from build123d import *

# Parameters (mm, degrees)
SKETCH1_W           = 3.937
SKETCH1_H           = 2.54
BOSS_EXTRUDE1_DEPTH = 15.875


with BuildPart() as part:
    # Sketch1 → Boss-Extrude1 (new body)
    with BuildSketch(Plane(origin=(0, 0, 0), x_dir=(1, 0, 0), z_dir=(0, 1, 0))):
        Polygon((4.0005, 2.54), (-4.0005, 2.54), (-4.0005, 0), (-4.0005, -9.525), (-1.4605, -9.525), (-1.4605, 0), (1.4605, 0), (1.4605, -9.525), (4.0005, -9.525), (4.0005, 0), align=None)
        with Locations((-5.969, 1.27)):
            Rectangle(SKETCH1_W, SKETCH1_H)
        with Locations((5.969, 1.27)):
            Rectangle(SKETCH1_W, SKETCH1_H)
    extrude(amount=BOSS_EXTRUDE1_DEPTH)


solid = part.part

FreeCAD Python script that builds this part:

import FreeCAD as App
import Part
import Sketcher

V = App.Vector
Q = App.Units.Quantity


def add_polygon(sketch, points):
    """Adds a closed chain of lines whose ends are joined by coincident constraints."""
    first, n = sketch.GeometryCount, len(points)
    for a, b in zip(points, points[1:] + points[:1]):
        sketch.addGeometry(Part.LineSegment(App.Vector(*a, 0), App.Vector(*b, 0)), False)
    for i in range(n):
        sketch.addConstraint(Sketcher.Constraint("Coincident", first + i, 2, first + (i + 1) % n, 1))

doc = App.newDocument("Part")
body = doc.addObject("PartDesign::Body", "Body")

# Sketch on XZ plane
sketch1 = doc.addObject("Sketcher::SketchObject", "Sketch")
body.addObject(sketch1)
sketch1.AttachmentSupport = (doc.XZ_Plane, [""])
sketch1.MapMode = "FlatFace"
add_polygon(sketch1, [(-7.9, -2.5), (-7.9, 0), (-4, 0), (-4, 9.5), (-1.5, 9.5), (-1.5, 0), (1.5, 0), (1.5, 9.5), (4, 9.5), (4, 0), (7.9, 0), (7.9, -2.5)])  # lines 0-11
sketch1.addConstraint(Sketcher.Constraint("Vertical", 0))
sketch1.addConstraint(Sketcher.Constraint("Horizontal", 1))
sketch1.addConstraint(Sketcher.Constraint("Vertical", 2))
sketch1.addConstraint(Sketcher.Constraint("Horizontal", 3))
sketch1.addConstraint(Sketcher.Constraint("Vertical", 4))
sketch1.addConstraint(Sketcher.Constraint("Horizontal", 5))
sketch1.addConstraint(Sketcher.Constraint("Vertical", 6))
sketch1.addConstraint(Sketcher.Constraint("Horizontal", 7))
sketch1.addConstraint(Sketcher.Constraint("Vertical", 8))
sketch1.addConstraint(Sketcher.Constraint("Horizontal", 9))
sketch1.addConstraint(Sketcher.Constraint("Vertical", 10))
sketch1.addConstraint(Sketcher.Constraint("Horizontal", 11))
sketch1.addConstraint(Sketcher.Constraint("Symmetric", 4, 2, 5, 2, -1, 1))
sketch1.addConstraint(Sketcher.Constraint("Symmetric", 1, 2, 8, 2, -1, 1))
sketch1.addConstraint(Sketcher.Constraint("Symmetric", 0, 2, 9, 2, -2))
sketch1.addConstraint(Sketcher.Constraint("Horizontal", 3, 2, 6, 2))
sketch1.addConstraint(Sketcher.Constraint("Equal", 7, 0))
sketch1.addConstraint(Sketcher.Constraint("DistanceX", 3, 1, 3, 2, Q("0.1 in")))
sketch1.addConstraint(Sketcher.Constraint("DistanceX", 1, 1, 1, 2, Q("0.155 in")))
sketch1.addConstraint(Sketcher.Constraint("DistanceX", 5, 1, 5, 2, Q("0.115 in")))
sketch1.addConstraint(Sketcher.Constraint("DistanceY", 2, 1, 2, 2, Q("0.375 in")))
pad1 = doc.addObject("PartDesign::Pad", "Pad")
body.addObject(pad1)
pad1.Profile = sketch1
pad1.Length = Q("0.625 in")
pad1.Reversed = True

doc.recompute()
